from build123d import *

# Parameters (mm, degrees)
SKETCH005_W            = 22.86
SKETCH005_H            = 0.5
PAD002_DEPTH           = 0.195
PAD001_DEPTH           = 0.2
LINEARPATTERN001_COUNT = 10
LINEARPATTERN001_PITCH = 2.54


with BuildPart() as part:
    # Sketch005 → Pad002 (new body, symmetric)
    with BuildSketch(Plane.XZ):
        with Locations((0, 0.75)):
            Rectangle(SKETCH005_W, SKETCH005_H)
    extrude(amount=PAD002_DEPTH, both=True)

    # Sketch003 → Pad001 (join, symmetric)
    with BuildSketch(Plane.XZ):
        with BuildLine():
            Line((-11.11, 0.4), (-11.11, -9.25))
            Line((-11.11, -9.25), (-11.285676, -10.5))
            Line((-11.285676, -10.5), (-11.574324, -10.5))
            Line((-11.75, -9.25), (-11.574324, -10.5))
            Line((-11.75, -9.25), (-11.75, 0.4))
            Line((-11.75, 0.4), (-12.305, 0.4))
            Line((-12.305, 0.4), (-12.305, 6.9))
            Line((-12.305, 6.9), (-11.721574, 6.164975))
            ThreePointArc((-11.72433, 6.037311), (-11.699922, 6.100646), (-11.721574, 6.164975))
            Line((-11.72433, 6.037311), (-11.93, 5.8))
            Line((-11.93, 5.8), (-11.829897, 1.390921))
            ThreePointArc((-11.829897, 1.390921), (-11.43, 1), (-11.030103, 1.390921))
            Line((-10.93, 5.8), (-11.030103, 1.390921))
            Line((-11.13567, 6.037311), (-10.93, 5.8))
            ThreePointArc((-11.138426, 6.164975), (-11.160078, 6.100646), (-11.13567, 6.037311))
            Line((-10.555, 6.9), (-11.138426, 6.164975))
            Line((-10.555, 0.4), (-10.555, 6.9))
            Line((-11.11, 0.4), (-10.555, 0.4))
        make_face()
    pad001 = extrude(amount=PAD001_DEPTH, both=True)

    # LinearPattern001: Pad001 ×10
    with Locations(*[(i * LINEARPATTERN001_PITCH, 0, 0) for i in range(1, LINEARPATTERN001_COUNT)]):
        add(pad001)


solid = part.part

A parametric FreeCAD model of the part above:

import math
import FreeCAD as App
import Part
import Sketcher
from FreeCAD import Vector
Q = App.Units.Quantity

doc = App.newDocument("Part")
body = doc.addObject("PartDesign::Body", "Body")

# Sketch on XZ plane
sketch1 = doc.addObject("Sketcher::SketchObject", "Sketch")
body.addObject(sketch1)
sketch1.AttachmentSupport = (doc.XZ_Plane, [""])
sketch1.MapMode = "FlatFace"
sketch1.addGeometry(Part.LineSegment(Vector(-11.4, 1, 0), Vector(-11.4, 0.5, 0)), False)
sketch1.addGeometry(Part.LineSegment(Vector(-11.4, 0.5, 0), Vector(11.4, 0.5, 0)), False)
sketch1.addGeometry(Part.LineSegment(Vector(11.4, 0.5, 0), Vector(11.4, 1, 0)), False)
sketch1.addGeometry(Part.LineSegment(Vector(11.4, 1, 0), Vector(-11.4, 1, 0)), False)
sketch1.addConstraint(Sketcher.Constraint("Coincident", 0, 2, 1, 1))
sketch1.addConstraint(Sketcher.Constraint("Coincident", 1, 2, 2, 1))
sketch1.addConstraint(Sketcher.Constraint("Coincident", 2, 2, 3, 1))
sketch1.addConstraint(Sketcher.Constraint("Coincident", 3, 2, 0, 1))
sketch1.addConstraint(Sketcher.Constraint("Vertical", 0))
sketch1.addConstraint(Sketcher.Constraint("Horizontal", 1))
sketch1.addConstraint(Sketcher.Constraint("Vertical", 2))
sketch1.addConstraint(Sketcher.Constraint("Horizontal", 3))
sketch1.addConstraint(Sketcher.Constraint("DistanceY", 0, 2, 0, 1, 0.5))
sketch1.addConstraint(Sketcher.Constraint("DistanceY", -1, 1, 2, 2, 1.0))
sketch1.addConstraint(Sketcher.Constraint("DistanceX", 1, 1, 1, 2, 22.86))
sketch1.addConstraint(Sketcher.Constraint("DistanceX", 0, 2, -1, 1, 11.43))
pad1 = doc.addObject("PartDesign::Pad", "Pad")
body.addObject(pad1)
pad1.Profile = sketch1
pad1.Length = 0.39
pad1.Midplane = True

# Sketch on XZ plane
sketch2 = doc.addObject("Sketcher::SketchObject", "Sketch001")
body.addObject(sketch2)
sketch2.AttachmentSupport = (doc.XZ_Plane, [""])
sketch2.MapMode = "FlatFace"
sketch2.addGeometry(Part.LineSegment(Vector(-11.11, -9.25, 0), Vector(-11.11, 0.4, 0)), False)
sketch2.addGeometry(Part.LineSegment(Vector(-11.11, 0.4, 0), Vector(-10.55, 0.4, 0)), False)
sketch2.addGeometry(Part.LineSegment(Vector(-10.55, 0.4, 0), Vector(-10.55, 6.9, 0)), False)
sketch2.addGeometry(Part.LineSegment(Vector(-10.55, 6.9, 0), Vector(-11.14, 6.16, 0)), False)
sketch2.addGeometry(Part.ArcOfCircle(Part.Circle(Vector(-11.06, 6.1, 0), Vector(0, 0, 1), 0.1), math.radians(142), math.radians(221)), False)
sketch2.addGeometry(Part.LineSegment(Vector(-11.14, 6.04, 0), Vector(-10.93, 5.8, 0)), False)
sketch2.addGeometry(Part.LineSegment(Vector(-10.93, 5.8, 0), Vector(-11.03, 1.39, 0)), False)
sketch2.addGeometry(Part.ArcOfCircle(Part.Circle(Vector(-11.43, 1.4, 0), Vector(0, 0, 1), 0.4), math.radians(-179), math.radians(-1)), False)
sketch2.addGeometry(Part.LineSegment(Vector(-11.83, 1.39, 0), Vector(-11.93, 5.8, 0)), False)
sketch2.addGeometry(Part.LineSegment(Vector(-11.93, 5.8, 0), Vector(-11.72, 6.04, 0)), False)
sketch2.addGeometry(Part.ArcOfCircle(Part.Circle(Vector(-11.8, 6.1, 0), Vector(0, 0, 1), 0.1), math.radians(-41), math.radians(38)), False)
sketch2.addGeometry(Part.LineSegment(Vector(-11.72, 6.16, 0), Vector(-12.3, 6.9, 0)), False)
sketch2.addGeometry(Part.LineSegment(Vector(-12.3, 6.9, 0), Vector(-12.3, 0.4, 0)), False)
sketch2.addGeometry(Part.LineSegment(Vector(-12.3, 0.4, 0), Vector(-11.75, 0.4, 0)), False)
sketch2.addGeometry(Part.LineSegment(Vector(-11.75, 0.4, 0), Vector(-11.75, -9.25, 0)), False)
sketch2.addGeometry(Part.LineSegment(Vector(-11.75, -9.25, 0), Vector(-11.57, -10.5, 0)), False)
sketch2.addGeometry(Part.LineSegment(Vector(-11.57, -10.5, 0), Vector(-11.29, -10.5, 0)), False)
sketch2.addGeometry(Part.LineSegment(Vector(-11.29, -10.5, 0), Vector(-11.11, -9.25, 0)), False)
sketch2.addConstraint(Sketcher.Constraint("Coincident", 0, 2, 1, 1))
sketch2.addConstraint(Sketcher.Constraint("Coincident", 1, 2, 2, 1))
sketch2.addConstraint(Sketcher.Constraint("Coincident", 2, 2, 3, 1))
sketch2.addConstraint(Sketcher.Constraint("Coincident", 3, 2, 4, 1))
sketch2.addConstraint(Sketcher.Constraint("Coincident", 4, 2, 5, 1))
sketch2.addConstraint(Sketcher.Constraint("Coincident", 5, 2, 6, 1))
sketch2.addConstraint(Sketcher.Constraint("Tangent", 6, 2, 7, 2))
sketch2.addConstraint(Sketcher.Constraint("Tangent", 7, 1, 8, 1))
sketch2.addConstraint(Sketcher.Constraint("Coincident", 8, 2, 9, 1))
sketch2.addConstraint(Sketcher.Constraint("Coincident", 9, 2, 10, 1))
sketch2.addConstraint(Sketcher.Constraint("Coincident", 10, 2, 11, 1))
sketch2.addConstraint(Sketcher.Constraint("Coincident", 11, 2, 12, 1))
sketch2.addConstraint(Sketcher.Constraint("Coincident", 12, 2, 13, 1))
sketch2.addConstraint(Sketcher.Constraint("Coincident", 13, 2, 14, 1))
sketch2.addConstraint(Sketcher.Constraint("Coincident", 14, 2, 15, 1))
sketch2.addConstraint(Sketcher.Constraint("Coincident", 15, 2, 16, 1))
sketch2.addConstraint(Sketcher.Constraint("Coincident", 16, 2, 17, 1))
sketch2.addConstraint(Sketcher.Constraint("Coincident", 17, 2, 0, 1))
sketch2.addConstraint(Sketcher.Constraint("Vertical", 0))
sketch2.addConstraint(Sketcher.Constraint("Horizontal", 1))
sketch2.addConstraint(Sketcher.Constraint("Vertical", 2))
sketch2.addConstraint(Sketcher.Constraint("Vertical", 12))
sketch2.addConstraint(Sketcher.Constraint("Horizontal", 13))
sketch2.addConstraint(Sketcher.Constraint("Vertical", 14))
sketch2.addConstraint(Sketcher.Constraint("Horizontal", 16))
sketch2.addConstraint(Sketcher.Constraint("Equal", 4, 10))
sketch2.addConstraint(Sketcher.Constraint("Horizontal", 4, 3, 10, 3))
sketch2.addConstraint(Sketcher.Constraint("Horizontal", 6, 2, 7, 1))
sketch2.addConstraint(Sketcher.Constraint("Horizontal", 5, 2, 8, 2))
sketch2.addConstraint(Sketcher.Constraint("Horizontal", 4, 2, 9, 2))
sketch2.addConstraint(Sketcher.Constraint("Horizontal", 3, 2, 10, 2))
sketch2.addConstraint(Sketcher.Constraint("Horizontal", 2, 2, 11, 2))
sketch2.addConstraint(Sketcher.Constraint("Horizontal", 1, 2, 12, 2))
sketch2.addConstraint(Sketcher.Constraint("Horizontal", 14, 2, 17, 2))
sketch2.addConstraint(Sketcher.Constraint("Equal", 1, 13))
sketch2.addConstraint(Sketcher.Constraint("Equal", 5, 9))
sketch2.addConstraint(Sketcher.Constraint("Equal", 3, 11))
sketch2.addConstraint(Sketcher.Constraint("Equal", 15, 17))
sketch2.addConstraint(Sketcher.Constraint("Radius", 4, 0.1))
sketch2.addConstraint(Sketcher.Constraint("Radius", 7, 0.4))
sketch2.addConstraint(Sketcher.Constraint("Angle", 15, Q("-82.000002 deg")))
sketch2.addConstraint(Sketcher.Constraint("DistanceY", 2, 1, 2, 2, 6.5))
sketch2.addConstraint(Sketcher.Constraint("DistanceY", 0, 2, 7, 3, 1.0))
sketch2.addConstraint(Sketcher.Constraint("DistanceX", 8, 2, 5, 2, 1.0))
sketch2.addConstraint(Sketcher.Constraint("DistanceY", 0, 1, 0, 2, 9.65))
sketch2.addConstraint(Sketcher.Constraint("DistanceY", -1, 1, 7, 3, 1.4))
sketch2.addConstraint(Sketcher.Constraint("DistanceY", -1, 1, 5, 2, 5.8))
sketch2.addConstraint(Sketcher.Constraint("DistanceY", 15, 2, -1, 1, 10.5))
sketch2.addConstraint(Sketcher.Constraint("DistanceX", 1, 1, 1, 2, 0.555))
sketch2.addConstraint(Sketcher.Constraint("DistanceX", 7, 3, -1, 1, 11.43))
sketch2.addConstraint(Sketcher.Constraint("DistanceX", 0, 2, -1, 1, 11.11))
sketch2.addConstraint(Sketcher.Constraint("DistanceX", 4, 3, -1, 1, 11.060102))
sketch2.addConstraint(Sketcher.Constraint("Distance", 3, 0.938428))
sketch2.addConstraint(Sketcher.Constraint("DistanceX", 4, 2, -1, 1, 11.13567))
sketch2.addConstraint(Sketcher.Constraint("DistanceY", -1, 1, 4, 2, 6.037311))
pad2 = doc.addObject("PartDesign::Pad", "Pad001")
body.addObject(pad2)
pad2.Profile = sketch2
pad2.Length = 0.4
pad2.Midplane = True
doc.recompute()

linearpattern = doc.addObject("PartDesign::LinearPattern", "LinearPattern")
body.addObject(linearpattern)
linearpattern.Originals = [pad2]
linearpattern.Direction = (doc.X_Axis, [""])
linearpattern.Mode = "offset"
linearpattern.Offset = 2.54
linearpattern.Occurrences = 10
body.Tip = linearpattern

doc.recompute()
